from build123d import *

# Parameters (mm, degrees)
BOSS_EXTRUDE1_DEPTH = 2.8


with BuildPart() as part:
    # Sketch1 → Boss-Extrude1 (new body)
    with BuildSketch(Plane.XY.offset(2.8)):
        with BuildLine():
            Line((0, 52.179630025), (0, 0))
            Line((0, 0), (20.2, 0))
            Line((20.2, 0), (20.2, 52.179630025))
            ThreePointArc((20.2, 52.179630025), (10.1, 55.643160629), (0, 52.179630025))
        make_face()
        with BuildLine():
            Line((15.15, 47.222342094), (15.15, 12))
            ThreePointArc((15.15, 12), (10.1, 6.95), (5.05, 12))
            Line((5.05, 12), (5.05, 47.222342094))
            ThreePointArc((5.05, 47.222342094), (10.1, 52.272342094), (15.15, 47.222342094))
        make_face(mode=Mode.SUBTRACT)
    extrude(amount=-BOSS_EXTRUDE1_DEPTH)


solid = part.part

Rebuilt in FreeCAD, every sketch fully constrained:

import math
import FreeCAD as App
import Part
import Sketcher
from FreeCAD import Vector

doc = App.newDocument("Part")
body = doc.addObject("PartDesign::Body", "Body")

# Sketch on XY plane
sketch1 = doc.addObject("Sketcher::SketchObject", "Sketch")
body.addObject(sketch1)
sketch1.AttachmentSupport = (doc.XY_Plane, [""])
sketch1.MapMode = "FlatFace"
sketch1.AttachmentOffset = App.Placement(Vector(0, 0, 2.8), App.Rotation())
sketch1.addGeometry([
    Part.LineSegment(Vector(0, 52, 0), Vector(0, 0, 0)),  # 0
    Part.LineSegment(Vector(0, 0, 0), Vector(20, 0, 0)),  # 1
    Part.LineSegment(Vector(20, 0, 0), Vector(20, 52, 0)),  # 2
    Part.ArcOfCircle(Part.Circle(Vector(10, 39, 0), Vector(0, 0, 1), 16), math.radians(52), math.radians(128)),  # 3
    Part.ArcOfCircle(Part.Circle(Vector(10, 47, 0), Vector(0, 0, 1), 5), math.radians(0), math.radians(180)),  # 4
    Part.LineSegment(Vector(15, 47, 0), Vector(15, 12, 0)),  # 5
    Part.ArcOfCircle(Part.Circle(Vector(10, 12, 0), Vector(0, 0, 1), 5), math.radians(180), math.radians(360)),  # 6
    Part.LineSegment(Vector(5, 12, 0), Vector(5, 47, 0)),  # 7
], False)
sketch1.addConstraint([
    Sketcher.Constraint("Coincident", 0, 2, 1, 1),
    Sketcher.Constraint("Coincident", 1, 2, 2, 1),
    Sketcher.Constraint("Coincident", 2, 2, 3, 1),
    Sketcher.Constraint("Coincident", 3, 2, 0, 1),
    Sketcher.Constraint("Tangent", 4, 1, 5, 1),
    Sketcher.Constraint("Tangent", 5, 2, 6, 2),
    Sketcher.Constraint("Tangent", 6, 1, 7, 1),
    Sketcher.Constraint("Tangent", 7, 2, 4, 2),
    Sketcher.Constraint("Vertical", 0),
    Sketcher.Constraint("Horizontal", 1),
    Sketcher.Constraint("Vertical", 2),
    Sketcher.Constraint("Vertical", 5),
    Sketcher.Constraint("Vertical", 7),
    Sketcher.Constraint("Coincident", 0, 2, -1, 1),
    Sketcher.Constraint("Horizontal", 2, 2, 3, 2),
    Sketcher.Constraint("Vertical", 3, 3, 4, 3),
    Sketcher.Constraint("Radius", 4, 5.05),
    Sketcher.Constraint("DistanceX", 1, 1, 1, 2, 20.2),
    Sketcher.Constraint("DistanceY", -1, 1, 6, 3, 12.0),
    Sketcher.Constraint("Radius", 3, 16.458068),
    Sketcher.Constraint("DistanceY", 0, 2, 0, 1, 52.17963),
    Sketcher.Constraint("DistanceY", 5, 2, 5, 1, 35.222342),
])
pad1 = doc.addObject("PartDesign::Pad", "Pad")
body.addObject(pad1)
pad1.Profile = sketch1
pad1.Length = 2.8
pad1.Reversed = True

doc.recompute()
